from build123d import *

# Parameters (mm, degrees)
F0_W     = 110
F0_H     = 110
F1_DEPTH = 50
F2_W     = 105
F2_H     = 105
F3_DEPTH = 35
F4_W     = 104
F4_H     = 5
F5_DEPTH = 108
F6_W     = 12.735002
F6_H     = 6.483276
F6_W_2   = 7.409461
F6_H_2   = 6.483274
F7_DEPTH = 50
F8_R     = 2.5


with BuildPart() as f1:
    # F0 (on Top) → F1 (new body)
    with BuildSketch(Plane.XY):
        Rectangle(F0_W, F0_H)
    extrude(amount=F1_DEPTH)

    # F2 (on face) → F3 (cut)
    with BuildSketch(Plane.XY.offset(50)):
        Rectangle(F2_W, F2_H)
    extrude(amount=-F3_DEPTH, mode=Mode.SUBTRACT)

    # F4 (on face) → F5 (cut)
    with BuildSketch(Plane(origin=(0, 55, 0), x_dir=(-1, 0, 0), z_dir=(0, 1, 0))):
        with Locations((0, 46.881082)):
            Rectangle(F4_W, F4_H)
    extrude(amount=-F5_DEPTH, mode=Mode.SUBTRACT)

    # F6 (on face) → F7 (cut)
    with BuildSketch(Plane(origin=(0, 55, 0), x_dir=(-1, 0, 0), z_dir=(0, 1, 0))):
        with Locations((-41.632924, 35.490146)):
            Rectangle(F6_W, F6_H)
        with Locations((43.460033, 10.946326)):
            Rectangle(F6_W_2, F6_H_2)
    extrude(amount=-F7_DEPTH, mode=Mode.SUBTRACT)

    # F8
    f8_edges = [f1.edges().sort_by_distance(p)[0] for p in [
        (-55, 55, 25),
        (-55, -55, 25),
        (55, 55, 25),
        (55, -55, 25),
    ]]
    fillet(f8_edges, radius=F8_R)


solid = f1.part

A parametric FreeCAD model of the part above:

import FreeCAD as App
import Part
import Sketcher
from FreeCAD import Vector


def edges_at(feature, points):
    """Names of the edges that pass closest to the given points."""
    edges = feature.Shape.Edges
    near = lambda p: min(range(len(edges)), key=lambda i: edges[i].distToShape(Part.Vertex(*p))[0])
    return sorted({f"Edge{near(p) + 1}" for p in points})


def add_polygon(sketch, points):
    """Adds a closed chain of lines whose ends are joined by coincident constraints."""
    first, n = sketch.GeometryCount, len(points)
    for a, b in zip(points, points[1:] + points[:1]):
        sketch.addGeometry(Part.LineSegment(App.Vector(*a, 0), App.Vector(*b, 0)), False)
    for i in range(n):
        sketch.addConstraint(Sketcher.Constraint("Coincident", first + i, 2, first + (i + 1) % n, 1))

doc = App.newDocument("Part")
body = doc.addObject("PartDesign::Body", "Body")

# Sketch on XY plane
sketch1 = body.newObject("Sketcher::SketchObject", "Sketch")
sketch1.AttachmentSupport = (doc.getObject("XY_Plane"), [""])
sketch1.MapMode = "FlatFace"
add_polygon(sketch1, [(-55, 55), (-55, -55), (55, -55), (55, 55)])  # lines 0-3
sketch1.addConstraint([
    Sketcher.Constraint("Vertical", 0),
    Sketcher.Constraint("Horizontal", 1),
    Sketcher.Constraint("Vertical", 2),
    Sketcher.Constraint("Horizontal", 3),
    Sketcher.Constraint("Symmetric", 0, 2, 2, 2, -1, 1),
    Sketcher.Constraint("Equal", 3, 0),
    Sketcher.Constraint("DistanceX", 1, 1, 1, 2, 110.0),
])
pad1 = body.newObject("PartDesign::Pad", "Pad")
pad1.Profile = sketch1
pad1.Length = 50

# Sketch on XY plane
sketch2 = body.newObject("Sketcher::SketchObject", "Sketch001")
sketch2.AttachmentSupport = (doc.getObject("XY_Plane"), [""])
sketch2.MapMode = "FlatFace"
sketch2.AttachmentOffset = App.Placement(Vector(0, 0, 50), App.Rotation())
add_polygon(sketch2, [(-52.5, 52.5), (-52.5, -52.5), (52.5, -52.5), (52.5, 52.5)])  # lines 0-3
sketch2.addConstraint([
    Sketcher.Constraint("Vertical", 0),
    Sketcher.Constraint("Horizontal", 1),
    Sketcher.Constraint("Vertical", 2),
    Sketcher.Constraint("Horizontal", 3),
    Sketcher.Constraint("Symmetric", 0, 2, 2, 2, -1, 1),
    Sketcher.Constraint("Equal", 3, 0),
    Sketcher.Constraint("DistanceX", 1, 1, 1, 2, 105.0),
])
pocket1 = body.newObject("PartDesign::Pocket", "Pocket")
pocket1.Profile = sketch2
pocket1.Length = 35

# Sketch on XZ plane
sketch3 = body.newObject("Sketcher::SketchObject", "Sketch002")
sketch3.AttachmentSupport = (doc.getObject("XZ_Plane"), [""])
sketch3.MapMode = "FlatFace"
sketch3.AttachmentOffset = App.Placement(Vector(0, 0, -55), App.Rotation())
add_polygon(sketch3, [(52, 49.381082), (52, 44.381082), (-52, 44.381082), (-52, 49.381082)])  # lines 0-3
sketch3.addConstraint([
    Sketcher.Constraint("Vertical", 0),
    Sketcher.Constraint("Horizontal", 1),
    Sketcher.Constraint("Vertical", 2),
    Sketcher.Constraint("Horizontal", 3),
    Sketcher.Constraint("DistanceX", 1, 2, 1, 1, 104.0),
    Sketcher.Constraint("DistanceY", 0, 2, 0, 1, 5.0),
    Sketcher.Constraint("DistanceX", -1, 1, 0, 2, 52.0),
    Sketcher.Constraint("DistanceY", -1, 1, 0, 2, 44.381082),
])
pocket2 = body.newObject("PartDesign::Pocket", "Pocket001")
pocket2.Profile = sketch3
pocket2.Length = 108
pocket2.Reversed = True

# Sketch on XZ plane
sketch4 = body.newObject("Sketcher::SketchObject", "Sketch003")
sketch4.AttachmentSupport = (doc.getObject("XZ_Plane"), [""])
sketch4.MapMode = "FlatFace"
sketch4.AttachmentOffset = App.Placement(Vector(0, 0, -55), App.Rotation())
add_polygon(sketch4, [(48.000425, 38.731784), (48.000425, 32.248508), (35.265423, 32.248508), (35.265423, 38.731784)])  # lines 0-3
add_polygon(sketch4, [(-39.755302, 14.187963), (-39.755302, 7.704689), (-47.164763, 7.704689), (-47.164763, 14.187963)])  # lines 4-7
sketch4.addConstraint([
    Sketcher.Constraint("Vertical", 0),
    Sketcher.Constraint("Horizontal", 1),
    Sketcher.Constraint("Vertical", 2),
    Sketcher.Constraint("Horizontal", 3),
    Sketcher.Constraint("Vertical", 4),
    Sketcher.Constraint("Horizontal", 5),
    Sketcher.Constraint("Vertical", 6),
    Sketcher.Constraint("Horizontal", 7),
    Sketcher.Constraint("Equal", 2, 4),
    Sketcher.Constraint("DistanceX", 5, 2, 5, 1, 7.409461),
    Sketcher.Constraint("DistanceX", 1, 2, 1, 1, 12.735002),
    Sketcher.Constraint("DistanceY", 0, 2, 0, 1, 6.483276),
    Sketcher.Constraint("DistanceY", -1, 1, 4, 2, 7.704689),
    Sketcher.Constraint("DistanceY", 4, 2, 1, 2, 24.543819),
    Sketcher.Constraint("DistanceX", 5, 2, 0, 2, 95.165188),
    Sketcher.Constraint("DistanceX", -1, 1, 0, 2, 48.000425),
])
pocket3 = body.newObject("PartDesign::Pocket", "Pocket002")
pocket3.Profile = sketch4
pocket3.Length = 50
pocket3.Reversed = True
doc.recompute()

fillet = body.newObject("PartDesign::Fillet", "Fillet")
fillet.Base = (pocket3, edges_at(pocket3, [
    (-55, 55, 25),
    (-55, -55, 25),
    (55, 55, 25),
    (55, -55, 25),
]))
fillet.Radius = 2.5

doc.recompute()
